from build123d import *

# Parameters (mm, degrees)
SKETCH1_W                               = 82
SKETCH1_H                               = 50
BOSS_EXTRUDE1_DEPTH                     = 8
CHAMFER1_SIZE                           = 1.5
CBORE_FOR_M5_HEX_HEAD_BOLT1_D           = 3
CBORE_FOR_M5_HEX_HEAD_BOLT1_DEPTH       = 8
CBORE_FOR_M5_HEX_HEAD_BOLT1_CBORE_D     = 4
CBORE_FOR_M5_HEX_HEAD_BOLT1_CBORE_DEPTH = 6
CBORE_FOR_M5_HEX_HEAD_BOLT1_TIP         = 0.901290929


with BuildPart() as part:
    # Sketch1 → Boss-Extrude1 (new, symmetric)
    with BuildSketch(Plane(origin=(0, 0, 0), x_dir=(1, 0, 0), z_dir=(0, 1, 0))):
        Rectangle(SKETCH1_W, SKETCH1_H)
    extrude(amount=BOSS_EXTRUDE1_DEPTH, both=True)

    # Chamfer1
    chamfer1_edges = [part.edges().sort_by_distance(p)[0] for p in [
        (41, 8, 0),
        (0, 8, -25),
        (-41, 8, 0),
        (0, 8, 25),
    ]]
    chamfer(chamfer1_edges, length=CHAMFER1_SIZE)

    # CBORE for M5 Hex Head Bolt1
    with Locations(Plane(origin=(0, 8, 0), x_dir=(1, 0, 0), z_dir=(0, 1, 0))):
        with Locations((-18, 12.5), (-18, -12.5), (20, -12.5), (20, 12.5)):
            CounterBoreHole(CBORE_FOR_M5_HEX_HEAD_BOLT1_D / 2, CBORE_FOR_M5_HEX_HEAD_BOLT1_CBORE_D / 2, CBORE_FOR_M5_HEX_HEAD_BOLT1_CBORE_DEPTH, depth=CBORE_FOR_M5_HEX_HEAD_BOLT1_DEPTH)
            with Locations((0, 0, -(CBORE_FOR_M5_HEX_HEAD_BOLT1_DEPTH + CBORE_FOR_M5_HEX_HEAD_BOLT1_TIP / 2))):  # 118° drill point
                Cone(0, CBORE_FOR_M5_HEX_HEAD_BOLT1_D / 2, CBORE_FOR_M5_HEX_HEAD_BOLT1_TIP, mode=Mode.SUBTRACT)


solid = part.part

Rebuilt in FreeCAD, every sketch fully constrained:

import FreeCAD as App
import Part
import Sketcher

V = App.Vector
Q = App.Units.Quantity


def edges_at(feature, points):
    """Names of the edges that pass closest to the given points."""
    edges = feature.Shape.Edges
    near = lambda p: min(range(len(edges)), key=lambda i: edges[i].distToShape(Part.Vertex(*p))[0])
    return sorted({f"Edge{near(p) + 1}" for p in points})

doc = App.newDocument("Part")
body = doc.addObject("PartDesign::Body", "Body")

# Sketch on XZ plane
sketch1 = body.newObject("Sketcher::SketchObject", "Sketch")
sketch1.AttachmentSupport = (doc.getObject("XZ_Plane"), [""])
sketch1.MapMode = "FlatFace"
sketch1.addGeometry(Part.LineSegment(V(-41, -25, 0), V(-41, 25, 0)), False)
sketch1.addGeometry(Part.LineSegment(V(-41, 25, 0), V(41, 25, 0)), False)
sketch1.addGeometry(Part.LineSegment(V(41, 25, 0), V(41, -25, 0)), False)
sketch1.addGeometry(Part.LineSegment(V(41, -25, 0), V(-41, -25, 0)), False)
sketch1.addConstraint(Sketcher.Constraint("Coincident", 0, 2, 1, 1))
sketch1.addConstraint(Sketcher.Constraint("Coincident", 1, 2, 2, 1))
sketch1.addConstraint(Sketcher.Constraint("Coincident", 2, 2, 3, 1))
sketch1.addConstraint(Sketcher.Constraint("Coincident", 3, 2, 0, 1))
sketch1.addConstraint(Sketcher.Constraint("Vertical", 0))
sketch1.addConstraint(Sketcher.Constraint("Horizontal", 1))
sketch1.addConstraint(Sketcher.Constraint("Vertical", 2))
sketch1.addConstraint(Sketcher.Constraint("Horizontal", 3))
sketch1.addConstraint(Sketcher.Constraint("Symmetric", 0, 2, 2, 2, -1, 1))
sketch1.addConstraint(Sketcher.Constraint("DistanceX", 1, 1, 1, 2, Q("82 mm")))
sketch1.addConstraint(Sketcher.Constraint("DistanceY", 0, 1, 0, 2, Q("50 mm")))
pad1 = body.newObject("PartDesign::Pad", "Pad")
pad1.Profile = sketch1
pad1.Length = 16
pad1.Midplane = True
doc.recompute()

chamfer = body.newObject("PartDesign::Chamfer", "Chamfer")
chamfer.Base = (pad1, edges_at(pad1, [
    (41, 8, 0),
    (0, 8, -25),
    (-41, 8, 0),
    (0, 8, 25),
]))
chamfer.Size = 1.5

# Sketch on XZ plane
sketch2 = body.newObject("Sketcher::SketchObject", "Sketch001")
sketch2.AttachmentSupport = (doc.getObject("XZ_Plane"), [""])
sketch2.MapMode = "FlatFace"
sketch2.AttachmentOffset = App.Placement(V(0, 0, -8), App.Rotation())
sketch2.addGeometry(Part.Circle(V(-18, -12.5, 0), V(0, 0, 1), 1.5), False)
sketch2.addGeometry(Part.Circle(V(-18, 12.5, 0), V(0, 0, 1), 1.5), False)
sketch2.addGeometry(Part.Circle(V(20, 12.5, 0), V(0, 0, 1), 1.5), False)
sketch2.addGeometry(Part.Circle(V(20, -12.5, 0), V(0, 0, 1), 1.5), False)
sketch2.addConstraint(Sketcher.Constraint("Equal", 0, 1))
sketch2.addConstraint(Sketcher.Constraint("Equal", 1, 2))
sketch2.addConstraint(Sketcher.Constraint("Equal", 2, 3))
sketch2.addConstraint(Sketcher.Constraint("Symmetric", 0, 3, 1, 3, -1))
sketch2.addConstraint(Sketcher.Constraint("Symmetric", 2, 3, 3, 3, -1))
sketch2.addConstraint(Sketcher.Constraint("Horizontal", 1, 3, 2, 3))
sketch2.addConstraint(Sketcher.Constraint("Diameter", 0, Q("3 mm")))
sketch2.addConstraint(Sketcher.Constraint("DistanceX", 0, 3, -1, 1, Q("18 mm")))
sketch2.addConstraint(Sketcher.Constraint("DistanceX", -1, 1, 2, 3, Q("20 mm")))
sketch2.addConstraint(Sketcher.Constraint("DistanceY", 0, 3, 1, 3, Q("25 mm")))
doc.recompute()
hole = body.newObject("PartDesign::Hole", "Hole")
hole.Profile = sketch2
hole.ThreadType = "None"
hole.Diameter = 3
hole.DepthType = "Dimension"
hole.Depth = 8
hole.DrillPoint = "Angled"
hole.DrillPointAngle = 118
hole.HoleCutType = "Counterbore"
hole.HoleCutDiameter = 4
hole.HoleCutDepth = 6
hole.Reversed = True

doc.recompute()
